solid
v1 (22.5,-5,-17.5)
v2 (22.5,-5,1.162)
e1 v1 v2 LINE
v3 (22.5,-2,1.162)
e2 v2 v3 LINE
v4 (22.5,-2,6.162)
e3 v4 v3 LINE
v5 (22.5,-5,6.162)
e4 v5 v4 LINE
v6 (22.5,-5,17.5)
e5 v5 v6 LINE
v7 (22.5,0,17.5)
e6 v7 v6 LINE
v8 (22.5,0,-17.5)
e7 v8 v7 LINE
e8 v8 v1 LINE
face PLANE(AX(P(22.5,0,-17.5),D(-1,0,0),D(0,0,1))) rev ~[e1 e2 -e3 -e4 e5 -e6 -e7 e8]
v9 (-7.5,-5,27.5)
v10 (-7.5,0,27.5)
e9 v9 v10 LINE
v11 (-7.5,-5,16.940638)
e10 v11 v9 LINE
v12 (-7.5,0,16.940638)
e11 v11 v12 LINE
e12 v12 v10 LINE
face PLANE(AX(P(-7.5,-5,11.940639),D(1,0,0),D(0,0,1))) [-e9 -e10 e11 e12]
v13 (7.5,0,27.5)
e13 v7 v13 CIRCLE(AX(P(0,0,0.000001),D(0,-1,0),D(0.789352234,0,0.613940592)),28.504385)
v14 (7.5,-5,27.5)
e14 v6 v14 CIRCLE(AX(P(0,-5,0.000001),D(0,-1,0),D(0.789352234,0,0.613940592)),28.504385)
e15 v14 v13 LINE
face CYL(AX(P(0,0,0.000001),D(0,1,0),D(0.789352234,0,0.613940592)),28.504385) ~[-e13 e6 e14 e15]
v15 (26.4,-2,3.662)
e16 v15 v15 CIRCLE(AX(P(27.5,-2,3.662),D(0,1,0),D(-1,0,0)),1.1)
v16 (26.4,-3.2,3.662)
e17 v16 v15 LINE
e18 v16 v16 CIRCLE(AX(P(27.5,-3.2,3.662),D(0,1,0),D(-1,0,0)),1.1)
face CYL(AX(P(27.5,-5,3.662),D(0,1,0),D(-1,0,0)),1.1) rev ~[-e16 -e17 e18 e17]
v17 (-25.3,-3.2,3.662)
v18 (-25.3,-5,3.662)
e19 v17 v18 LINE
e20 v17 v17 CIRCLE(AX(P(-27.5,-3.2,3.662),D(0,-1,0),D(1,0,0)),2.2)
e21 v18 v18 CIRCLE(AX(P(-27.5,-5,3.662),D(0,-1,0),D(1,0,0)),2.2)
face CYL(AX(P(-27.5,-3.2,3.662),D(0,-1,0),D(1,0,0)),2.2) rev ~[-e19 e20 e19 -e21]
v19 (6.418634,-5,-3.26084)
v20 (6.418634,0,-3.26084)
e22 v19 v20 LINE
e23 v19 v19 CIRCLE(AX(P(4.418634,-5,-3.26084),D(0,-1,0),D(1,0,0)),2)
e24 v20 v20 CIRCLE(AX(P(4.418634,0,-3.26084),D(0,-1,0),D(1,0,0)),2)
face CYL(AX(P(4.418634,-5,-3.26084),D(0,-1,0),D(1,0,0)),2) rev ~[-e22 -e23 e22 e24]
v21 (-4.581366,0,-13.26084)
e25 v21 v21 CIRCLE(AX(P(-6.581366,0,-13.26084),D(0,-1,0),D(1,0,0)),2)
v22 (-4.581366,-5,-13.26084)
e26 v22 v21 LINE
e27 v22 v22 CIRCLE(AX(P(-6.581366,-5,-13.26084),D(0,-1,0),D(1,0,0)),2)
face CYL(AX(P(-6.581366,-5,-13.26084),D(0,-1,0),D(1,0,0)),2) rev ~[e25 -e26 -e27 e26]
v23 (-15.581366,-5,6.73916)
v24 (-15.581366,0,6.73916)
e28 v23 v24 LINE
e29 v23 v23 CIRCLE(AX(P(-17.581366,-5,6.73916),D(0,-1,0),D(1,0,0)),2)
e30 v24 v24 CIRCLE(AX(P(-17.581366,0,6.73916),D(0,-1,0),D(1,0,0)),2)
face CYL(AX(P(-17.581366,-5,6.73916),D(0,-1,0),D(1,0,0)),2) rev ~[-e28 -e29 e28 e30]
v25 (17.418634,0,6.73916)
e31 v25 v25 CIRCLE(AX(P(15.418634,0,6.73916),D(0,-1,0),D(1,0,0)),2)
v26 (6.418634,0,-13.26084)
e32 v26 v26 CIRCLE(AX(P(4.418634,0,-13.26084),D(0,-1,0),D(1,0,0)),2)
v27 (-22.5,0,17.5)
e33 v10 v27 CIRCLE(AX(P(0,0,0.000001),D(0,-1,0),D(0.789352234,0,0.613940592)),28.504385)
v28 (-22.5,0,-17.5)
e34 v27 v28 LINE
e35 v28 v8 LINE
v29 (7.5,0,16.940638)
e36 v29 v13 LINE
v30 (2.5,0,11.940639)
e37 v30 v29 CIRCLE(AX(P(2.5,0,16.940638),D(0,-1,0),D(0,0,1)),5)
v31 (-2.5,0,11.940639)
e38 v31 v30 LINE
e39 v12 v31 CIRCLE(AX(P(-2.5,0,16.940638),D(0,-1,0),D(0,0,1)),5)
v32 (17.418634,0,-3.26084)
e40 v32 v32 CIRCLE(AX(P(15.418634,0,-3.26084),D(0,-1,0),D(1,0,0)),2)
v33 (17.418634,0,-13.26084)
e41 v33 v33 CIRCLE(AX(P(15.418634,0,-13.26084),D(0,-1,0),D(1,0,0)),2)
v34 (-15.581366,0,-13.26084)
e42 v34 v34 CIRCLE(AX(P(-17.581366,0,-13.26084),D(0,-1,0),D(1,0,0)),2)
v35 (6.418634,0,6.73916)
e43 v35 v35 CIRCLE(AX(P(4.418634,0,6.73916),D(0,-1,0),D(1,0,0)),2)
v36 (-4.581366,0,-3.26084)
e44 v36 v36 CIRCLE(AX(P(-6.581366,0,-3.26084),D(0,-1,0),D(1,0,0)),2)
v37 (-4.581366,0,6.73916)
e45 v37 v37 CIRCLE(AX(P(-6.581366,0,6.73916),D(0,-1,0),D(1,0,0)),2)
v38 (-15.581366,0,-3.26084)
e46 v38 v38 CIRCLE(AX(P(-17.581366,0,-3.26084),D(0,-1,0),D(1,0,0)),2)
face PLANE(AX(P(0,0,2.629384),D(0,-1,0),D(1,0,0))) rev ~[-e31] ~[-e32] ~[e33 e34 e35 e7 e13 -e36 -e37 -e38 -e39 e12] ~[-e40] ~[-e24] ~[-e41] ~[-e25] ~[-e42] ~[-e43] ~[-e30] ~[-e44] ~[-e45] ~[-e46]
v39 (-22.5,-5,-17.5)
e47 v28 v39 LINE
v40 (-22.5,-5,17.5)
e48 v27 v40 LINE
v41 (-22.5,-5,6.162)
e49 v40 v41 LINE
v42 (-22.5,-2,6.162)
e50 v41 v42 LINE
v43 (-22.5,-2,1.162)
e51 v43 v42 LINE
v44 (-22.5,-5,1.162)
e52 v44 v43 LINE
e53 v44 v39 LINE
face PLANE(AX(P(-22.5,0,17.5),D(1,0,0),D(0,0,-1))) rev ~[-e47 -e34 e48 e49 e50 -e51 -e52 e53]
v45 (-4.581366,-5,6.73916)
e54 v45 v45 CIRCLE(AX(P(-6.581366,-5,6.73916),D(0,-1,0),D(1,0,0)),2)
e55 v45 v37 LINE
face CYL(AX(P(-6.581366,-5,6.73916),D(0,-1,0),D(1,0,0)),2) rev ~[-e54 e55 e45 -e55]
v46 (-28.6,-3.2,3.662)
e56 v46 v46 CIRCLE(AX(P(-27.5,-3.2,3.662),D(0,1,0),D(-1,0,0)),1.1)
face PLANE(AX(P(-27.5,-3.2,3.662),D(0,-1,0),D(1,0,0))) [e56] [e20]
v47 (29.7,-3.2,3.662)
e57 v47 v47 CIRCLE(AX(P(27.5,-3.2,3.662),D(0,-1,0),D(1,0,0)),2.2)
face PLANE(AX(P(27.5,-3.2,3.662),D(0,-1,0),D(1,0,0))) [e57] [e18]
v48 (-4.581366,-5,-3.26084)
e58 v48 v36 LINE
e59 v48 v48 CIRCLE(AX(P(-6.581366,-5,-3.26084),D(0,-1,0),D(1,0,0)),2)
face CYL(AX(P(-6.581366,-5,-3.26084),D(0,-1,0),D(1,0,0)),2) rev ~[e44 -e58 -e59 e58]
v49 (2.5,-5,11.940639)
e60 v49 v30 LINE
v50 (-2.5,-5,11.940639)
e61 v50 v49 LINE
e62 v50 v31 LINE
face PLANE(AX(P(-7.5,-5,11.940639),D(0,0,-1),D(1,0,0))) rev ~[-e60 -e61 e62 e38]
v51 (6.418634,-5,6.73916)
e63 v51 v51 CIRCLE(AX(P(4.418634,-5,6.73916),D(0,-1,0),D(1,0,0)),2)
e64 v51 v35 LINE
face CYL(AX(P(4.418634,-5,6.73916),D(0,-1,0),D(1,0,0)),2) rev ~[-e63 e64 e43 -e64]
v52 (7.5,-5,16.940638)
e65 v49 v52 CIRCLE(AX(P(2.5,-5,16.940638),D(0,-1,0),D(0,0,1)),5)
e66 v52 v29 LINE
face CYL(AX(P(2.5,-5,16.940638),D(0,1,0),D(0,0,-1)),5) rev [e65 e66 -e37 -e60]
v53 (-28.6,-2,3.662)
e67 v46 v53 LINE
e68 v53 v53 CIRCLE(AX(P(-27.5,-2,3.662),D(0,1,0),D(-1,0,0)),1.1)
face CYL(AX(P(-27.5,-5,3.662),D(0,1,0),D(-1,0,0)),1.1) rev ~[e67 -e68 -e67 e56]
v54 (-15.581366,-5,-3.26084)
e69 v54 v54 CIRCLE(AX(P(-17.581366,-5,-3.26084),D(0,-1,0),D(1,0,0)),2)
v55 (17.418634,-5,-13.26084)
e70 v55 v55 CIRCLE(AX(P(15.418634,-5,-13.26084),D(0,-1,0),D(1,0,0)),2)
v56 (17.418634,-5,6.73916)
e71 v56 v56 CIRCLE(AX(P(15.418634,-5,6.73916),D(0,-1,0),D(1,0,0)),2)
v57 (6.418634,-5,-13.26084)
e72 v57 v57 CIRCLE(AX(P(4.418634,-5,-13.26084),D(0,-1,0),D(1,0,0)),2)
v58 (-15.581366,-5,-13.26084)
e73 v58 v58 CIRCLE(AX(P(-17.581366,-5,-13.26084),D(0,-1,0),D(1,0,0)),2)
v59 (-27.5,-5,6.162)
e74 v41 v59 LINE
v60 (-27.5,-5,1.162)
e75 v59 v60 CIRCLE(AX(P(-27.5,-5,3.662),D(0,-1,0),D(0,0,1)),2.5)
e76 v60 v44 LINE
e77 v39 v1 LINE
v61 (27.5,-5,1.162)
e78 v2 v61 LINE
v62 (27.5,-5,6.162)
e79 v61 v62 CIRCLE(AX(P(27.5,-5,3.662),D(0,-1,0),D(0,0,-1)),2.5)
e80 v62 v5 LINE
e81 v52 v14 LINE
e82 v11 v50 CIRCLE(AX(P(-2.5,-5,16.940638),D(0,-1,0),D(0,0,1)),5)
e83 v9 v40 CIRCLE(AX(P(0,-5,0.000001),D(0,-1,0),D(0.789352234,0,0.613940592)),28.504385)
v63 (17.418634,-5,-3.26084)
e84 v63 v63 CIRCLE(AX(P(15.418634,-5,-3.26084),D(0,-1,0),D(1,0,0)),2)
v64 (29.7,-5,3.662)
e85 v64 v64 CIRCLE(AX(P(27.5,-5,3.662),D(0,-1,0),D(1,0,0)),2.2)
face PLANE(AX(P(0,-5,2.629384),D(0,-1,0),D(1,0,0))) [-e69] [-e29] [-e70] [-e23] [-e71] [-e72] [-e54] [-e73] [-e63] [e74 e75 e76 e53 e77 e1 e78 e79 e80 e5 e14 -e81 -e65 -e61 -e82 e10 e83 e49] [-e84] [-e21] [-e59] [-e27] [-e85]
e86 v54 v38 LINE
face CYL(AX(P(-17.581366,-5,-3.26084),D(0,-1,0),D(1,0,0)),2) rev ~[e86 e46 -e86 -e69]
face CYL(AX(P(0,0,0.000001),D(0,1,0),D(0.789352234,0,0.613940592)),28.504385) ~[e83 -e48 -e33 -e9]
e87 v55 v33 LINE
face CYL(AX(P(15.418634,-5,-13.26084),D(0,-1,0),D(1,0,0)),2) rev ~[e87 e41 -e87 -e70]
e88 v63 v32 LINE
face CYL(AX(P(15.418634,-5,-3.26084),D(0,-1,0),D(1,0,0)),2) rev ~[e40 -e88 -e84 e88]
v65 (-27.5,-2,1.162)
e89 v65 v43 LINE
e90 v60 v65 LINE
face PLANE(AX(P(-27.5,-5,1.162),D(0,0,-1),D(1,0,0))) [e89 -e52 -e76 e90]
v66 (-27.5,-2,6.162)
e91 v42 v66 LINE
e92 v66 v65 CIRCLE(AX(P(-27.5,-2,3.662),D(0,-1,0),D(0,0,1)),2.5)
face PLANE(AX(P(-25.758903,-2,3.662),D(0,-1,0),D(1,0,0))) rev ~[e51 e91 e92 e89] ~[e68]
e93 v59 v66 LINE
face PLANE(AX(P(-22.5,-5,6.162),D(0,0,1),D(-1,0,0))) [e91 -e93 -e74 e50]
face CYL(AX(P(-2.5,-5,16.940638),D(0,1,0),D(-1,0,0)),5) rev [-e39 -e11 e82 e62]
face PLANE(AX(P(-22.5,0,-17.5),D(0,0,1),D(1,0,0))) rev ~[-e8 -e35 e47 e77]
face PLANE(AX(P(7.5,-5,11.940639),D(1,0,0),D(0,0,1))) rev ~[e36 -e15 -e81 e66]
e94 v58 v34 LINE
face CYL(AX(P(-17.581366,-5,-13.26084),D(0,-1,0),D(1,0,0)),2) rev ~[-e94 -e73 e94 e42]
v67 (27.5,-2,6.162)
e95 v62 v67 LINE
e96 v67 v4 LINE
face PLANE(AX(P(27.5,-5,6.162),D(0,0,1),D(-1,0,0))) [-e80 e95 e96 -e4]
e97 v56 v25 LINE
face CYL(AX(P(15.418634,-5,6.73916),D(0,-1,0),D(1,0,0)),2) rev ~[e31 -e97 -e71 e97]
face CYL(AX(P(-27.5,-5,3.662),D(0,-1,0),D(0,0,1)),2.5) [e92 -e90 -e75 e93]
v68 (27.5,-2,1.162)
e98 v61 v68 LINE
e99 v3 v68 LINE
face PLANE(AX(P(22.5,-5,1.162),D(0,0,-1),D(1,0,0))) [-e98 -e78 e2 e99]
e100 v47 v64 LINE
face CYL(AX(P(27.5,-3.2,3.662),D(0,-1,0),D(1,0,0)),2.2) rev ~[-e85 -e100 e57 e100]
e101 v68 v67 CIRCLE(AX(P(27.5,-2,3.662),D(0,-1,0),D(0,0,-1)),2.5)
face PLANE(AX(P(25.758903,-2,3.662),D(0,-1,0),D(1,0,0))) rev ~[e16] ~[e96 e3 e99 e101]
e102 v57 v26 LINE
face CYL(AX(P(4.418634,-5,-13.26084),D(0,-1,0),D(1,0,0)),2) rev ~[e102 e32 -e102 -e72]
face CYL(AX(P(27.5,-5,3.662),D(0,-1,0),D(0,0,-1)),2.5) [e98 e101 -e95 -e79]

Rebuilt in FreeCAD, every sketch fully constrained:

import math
import FreeCAD as App
import Part
import Sketcher


def edges_at(feature, points):
    """Names of the edges that pass closest to the given points."""
    edges = feature.Shape.Edges
    near = lambda p: min(range(len(edges)), key=lambda i: edges[i].distToShape(Part.Vertex(*p))[0])
    return sorted({f"Edge{near(p) + 1}" for p in points})

doc = App.newDocument("Part")
body = doc.addObject("PartDesign::Body", "Body")

# Sketch on XZ plane
sketch1 = body.newObject("Sketcher::SketchObject", "Sketch")
sketch1.AttachmentSupport = (doc.getObject("XZ_Plane"), [""])
sketch1.MapMode = "FlatFace"
sketch1.addGeometry([
    Part.LineSegment(App.Vector(-22, -18, 0), App.Vector(22, -18, 0)),
    Part.LineSegment(App.Vector(22, -18, 0), App.Vector(22, 18, 0)),
    Part.ArcOfCircle(Part.Circle(App.Vector(0, 0, 0), App.Vector(0, 0, 1), 29), math.radians(38), math.radians(142)),
    Part.LineSegment(App.Vector(-22, 18, 0), App.Vector(-22, -18, 0)),
], False)
sketch1.addConstraint([
    Sketcher.Constraint("Coincident", 0, 2, 1, 1),
    Sketcher.Constraint("Coincident", 1, 2, 2, 1),
    Sketcher.Constraint("Coincident", 2, 2, 3, 1),
    Sketcher.Constraint("Coincident", 3, 2, 0, 1),
    Sketcher.Constraint("Horizontal", 0),
    Sketcher.Constraint("Vertical", 1),
    Sketcher.Constraint("Vertical", 3),
    Sketcher.Constraint("Coincident", 2, 3, -1, 1),
    Sketcher.Constraint("Symmetric", 0, 2, 2, 2, -1, 1),
    Sketcher.Constraint("DistanceX", 0, 1, 0, 2, 45.0),
    Sketcher.Constraint("DistanceY", 1, 1, 1, 2, 35.0),
])
pad1 = body.newObject("PartDesign::Pad", "Pad")
pad1.Profile = sketch1
pad1.Length = 5

# Sketch on XZ plane
sketch2 = body.newObject("Sketcher::SketchObject", "Sketch001")
sketch2.AttachmentSupport = (doc.getObject("XZ_Plane"), [""])
sketch2.MapMode = "FlatFace"
sketch2.AttachmentOffset = App.Placement(App.Vector(0, 0, 5), App.Rotation())
sketch2.addGeometry([
    Part.LineSegment(App.Vector(-8, 45, 0), App.Vector(-8, 12, 0)),
    Part.LineSegment(App.Vector(-8, 12, 0), App.Vector(8, 12, 0)),
    Part.LineSegment(App.Vector(8, 12, 0), App.Vector(8, 45, 0)),
    Part.LineSegment(App.Vector(8, 45, 0), App.Vector(-8, 45, 0)),
], False)
sketch2.addConstraint([
    Sketcher.Constraint("Coincident", 0, 2, 1, 1),
    Sketcher.Constraint("Coincident", 1, 2, 2, 1),
    Sketcher.Constraint("Coincident", 2, 2, 3, 1),
    Sketcher.Constraint("Coincident", 3, 2, 0, 1),
    Sketcher.Constraint("Vertical", 0),
    Sketcher.Constraint("Horizontal", 1),
    Sketcher.Constraint("Vertical", 2),
    Sketcher.Constraint("Horizontal", 3),
    Sketcher.Constraint("DistanceX", 1, 1, 1, 2, 15.0),
    Sketcher.Constraint("DistanceX", 0, 2, -1, 1, 7.5),
    Sketcher.Constraint("DistanceY", 0, 2, 0, 1, 33.127493),
    Sketcher.Constraint("DistanceY", -1, 1, 0, 2, 11.940639),
])
pocket1 = body.newObject("PartDesign::Pocket", "Pocket")
pocket1.Profile = sketch2
pocket1.Length = 25
doc.recompute()

fillet = body.newObject("PartDesign::Fillet", "Fillet")
fillet.Base = (pocket1, edges_at(pocket1, [(-7.5, -2.5, 11.941), (7.5, -2.5, 11.941)]))
fillet.Radius = 5

# Sketch on XZ plane
sketch3 = body.newObject("Sketcher::SketchObject", "Sketch002")
sketch3.AttachmentSupport = (doc.getObject("XZ_Plane"), [""])
sketch3.MapMode = "FlatFace"
sketch3.AttachmentOffset = App.Placement(App.Vector(0, 0, 5), App.Rotation())
sketch3.addGeometry([
    Part.LineSegment(App.Vector(-22.5, 1.2, 0), App.Vector(-22.5, 6.2, 0)),  # 0
    Part.LineSegment(App.Vector(-22.5, 6.2, 0), App.Vector(-27.5, 6.2, 0)),  # 1
    Part.ArcOfCircle(Part.Circle(App.Vector(-27.5, 3.7, 0), App.Vector(0, 0, 1), 2.5), math.radians(90), math.radians(270)),  # 2
    Part.LineSegment(App.Vector(-27.5, 1.2, 0), App.Vector(-22.5, 1.2, 0)),  # 3
    Part.LineSegment(App.Vector(22.5, 1.2, 0), App.Vector(27.5, 1.2, 0)),  # 4
    Part.ArcOfCircle(Part.Circle(App.Vector(27.5, 3.7, 0), App.Vector(0, 0, 1), 2.5), math.radians(-90), math.radians(90)),  # 5
    Part.LineSegment(App.Vector(27.5, 6.2, 0), App.Vector(22.5, 6.2, 0)),  # 6
    Part.LineSegment(App.Vector(22.5, 6.2, 0), App.Vector(22.5, 1.2, 0)),  # 7
], False)
sketch3.addConstraint([
    Sketcher.Constraint("Coincident", 0, 2, 1, 1),
    Sketcher.Constraint("Tangent", 1, 2, 2, 1),
    Sketcher.Constraint("Tangent", 2, 2, 3, 1),
    Sketcher.Constraint("Coincident", 3, 2, 0, 1),
    Sketcher.Constraint("Tangent", 4, 2, 5, 1),
    Sketcher.Constraint("Tangent", 5, 2, 6, 1),
    Sketcher.Constraint("Coincident", 6, 2, 7, 1),
    Sketcher.Constraint("Coincident", 7, 2, 4, 1),
    Sketcher.Constraint("Vertical", 0),
    Sketcher.Constraint("Horizontal", 1),
    Sketcher.Constraint("Horizontal", 3),
    Sketcher.Constraint("Horizontal", 4),
    Sketcher.Constraint("Horizontal", 6),
    Sketcher.Constraint("Vertical", 7),
    Sketcher.Constraint("Equal", 2, 5),
    Sketcher.Constraint("Symmetric", 2, 3, 5, 3, -2),
    Sketcher.Constraint("Equal", 3, 4),
    Sketcher.Constraint("Equal", 6, 0),
    Sketcher.Constraint("Radius", 2, 2.5),
    Sketcher.Constraint("DistanceX", 2, 3, 5, 3, 55.0),
    Sketcher.Constraint("DistanceY", -1, 1, 2, 3, 3.662),
])
pad2 = body.newObject("PartDesign::Pad", "Pad001")
pad2.Profile = sketch3
pad2.Length = 3
pad2.Reversed = True

# Sketch on XZ plane
sketch4 = body.newObject("Sketcher::SketchObject", "Sketch003")
sketch4.AttachmentSupport = (doc.getObject("XZ_Plane"), [""])
sketch4.MapMode = "FlatFace"
sketch4.AttachmentOffset = App.Placement(App.Vector(0, 0, 5), App.Rotation())
sketch4.addGeometry([
    Part.Circle(App.Vector(-27.5, 3.7, 0), App.Vector(0, 0, 1), 1.1),
    Part.Circle(App.Vector(27.5, 3.7, 0), App.Vector(0, 0, 1), 1.1),
], False)
sketch4.addConstraint([
    Sketcher.Constraint("Equal", 0, 1),
    Sketcher.Constraint("Symmetric", 0, 3, 1, 3, -2),
    Sketcher.Constraint("Diameter", 0, 2.2),
    Sketcher.Constraint("DistanceX", 0, 3, 1, 3, 55.0),
    Sketcher.Constraint("DistanceY", -1, 1, 0, 3, 3.662),
])
doc.recompute()
hole = body.newObject("PartDesign::Hole", "Hole")
hole.Profile = sketch4
hole.ThreadType = "None"
hole.Diameter = 2.2
hole.DepthType = "Dimension"
hole.Depth = 40
hole.DrillPoint = "Flat"
hole.HoleCutType = "Counterbore"
hole.HoleCutDiameter = 4.4
hole.HoleCutDepth = 1.8

# Sketch on XZ plane
sketch5 = body.newObject("Sketcher::SketchObject", "Sketch004")
sketch5.AttachmentSupport = (doc.getObject("XZ_Plane"), [""])
sketch5.MapMode = "FlatFace"
sketch5.AttachmentOffset = App.Placement(App.Vector(0, 0, 5), App.Rotation())
sketch5.addGeometry([
    Part.Circle(App.Vector(-17.6, -13.3, 0), App.Vector(0, 0, 1), 2),  # 0
    Part.Circle(App.Vector(-17.6, -3.3, 0), App.Vector(0, 0, 1), 2),  # 1
    Part.Circle(App.Vector(-17.6, 6.7, 0), App.Vector(0, 0, 1), 2),  # 2
    Part.Circle(App.Vector(-6.6, -13.3, 0), App.Vector(0, 0, 1), 2),  # 3
    Part.Circle(App.Vector(-6.6, -3.3, 0), App.Vector(0, 0, 1), 2),  # 4
    Part.Circle(App.Vector(-6.6, 6.7, 0), App.Vector(0, 0, 1), 2),  # 5
    Part.Circle(App.Vector(4.4, -13.3, 0), App.Vector(0, 0, 1), 2),  # 6
    Part.Circle(App.Vector(4.4, -3.3, 0), App.Vector(0, 0, 1), 2),  # 7
    Part.Circle(App.Vector(4.4, 6.7, 0), App.Vector(0, 0, 1), 2),  # 8
    Part.Circle(App.Vector(15.4, -13.3, 0), App.Vector(0, 0, 1), 2),  # 9
    Part.Circle(App.Vector(15.4, -3.3, 0), App.Vector(0, 0, 1), 2),  # 10
    Part.Circle(App.Vector(15.4, 6.7, 0), App.Vector(0, 0, 1), 2),  # 11
], False)
sketch5.addConstraint([
    Sketcher.Constraint("Equal", 0, 1),
    Sketcher.Constraint("Equal", 1, 2),
    Sketcher.Constraint("Equal", 2, 3),
    Sketcher.Constraint("Equal", 3, 4),
    Sketcher.Constraint("Equal", 4, 5),
    Sketcher.Constraint("Equal", 5, 6),
    Sketcher.Constraint("Equal", 6, 7),
    Sketcher.Constraint("Equal", 7, 8),
    Sketcher.Constraint("Equal", 8, 9),
    Sketcher.Constraint("Equal", 9, 10),
    Sketcher.Constraint("Equal", 10, 11),
    Sketcher.Constraint("Horizontal", 0, 3, 3, 3),
    Sketcher.Constraint("Horizontal", 1, 3, 4, 3),
    Sketcher.Constraint("Horizontal", 2, 3, 5, 3),
    Sketcher.Constraint("Horizontal", 3, 3, 6, 3),
    Sketcher.Constraint("Horizontal", 4, 3, 7, 3),
    Sketcher.Constraint("Horizontal", 5, 3, 8, 3),
    Sketcher.Constraint("Horizontal", 6, 3, 9, 3),
    Sketcher.Constraint("Horizontal", 7, 3, 10, 3),
    Sketcher.Constraint("Horizontal", 8, 3, 11, 3),
    Sketcher.Constraint("Vertical", 0, 3, 1, 3),
    Sketcher.Constraint("Vertical", 1, 3, 2, 3),
    Sketcher.Constraint("Vertical", 3, 3, 4, 3),
    Sketcher.Constraint("Vertical", 4, 3, 5, 3),
    Sketcher.Constraint("Vertical", 6, 3, 7, 3),
    Sketcher.Constraint("Vertical", 7, 3, 8, 3),
    Sketcher.Constraint("Vertical", 9, 3, 10, 3),
    Sketcher.Constraint("Vertical", 10, 3, 11, 3),
    Sketcher.Constraint("Diameter", 0, 4.0),
    Sketcher.Constraint("DistanceY", 0, 3, 1, 3, 10.0),
    Sketcher.Constraint("DistanceY", 1, 3, 2, 3, 10.0),
    Sketcher.Constraint("DistanceX", 0, 3, 3, 3, 11.0),
    Sketcher.Constraint("DistanceX", 3, 3, 6, 3, 11.0),
    Sketcher.Constraint("DistanceX", 6, 3, 9, 3, 11.0),
    Sketcher.Constraint("DistanceY", 0, 3, -1, 1, 13.26084),
    Sketcher.Constraint("DistanceX", 0, 3, -1, 1, 17.581366),
])
pocket2 = body.newObject("PartDesign::Pocket", "Pocket001")
pocket2.Profile = sketch5
pocket2.Length = 25

doc.recompute()
